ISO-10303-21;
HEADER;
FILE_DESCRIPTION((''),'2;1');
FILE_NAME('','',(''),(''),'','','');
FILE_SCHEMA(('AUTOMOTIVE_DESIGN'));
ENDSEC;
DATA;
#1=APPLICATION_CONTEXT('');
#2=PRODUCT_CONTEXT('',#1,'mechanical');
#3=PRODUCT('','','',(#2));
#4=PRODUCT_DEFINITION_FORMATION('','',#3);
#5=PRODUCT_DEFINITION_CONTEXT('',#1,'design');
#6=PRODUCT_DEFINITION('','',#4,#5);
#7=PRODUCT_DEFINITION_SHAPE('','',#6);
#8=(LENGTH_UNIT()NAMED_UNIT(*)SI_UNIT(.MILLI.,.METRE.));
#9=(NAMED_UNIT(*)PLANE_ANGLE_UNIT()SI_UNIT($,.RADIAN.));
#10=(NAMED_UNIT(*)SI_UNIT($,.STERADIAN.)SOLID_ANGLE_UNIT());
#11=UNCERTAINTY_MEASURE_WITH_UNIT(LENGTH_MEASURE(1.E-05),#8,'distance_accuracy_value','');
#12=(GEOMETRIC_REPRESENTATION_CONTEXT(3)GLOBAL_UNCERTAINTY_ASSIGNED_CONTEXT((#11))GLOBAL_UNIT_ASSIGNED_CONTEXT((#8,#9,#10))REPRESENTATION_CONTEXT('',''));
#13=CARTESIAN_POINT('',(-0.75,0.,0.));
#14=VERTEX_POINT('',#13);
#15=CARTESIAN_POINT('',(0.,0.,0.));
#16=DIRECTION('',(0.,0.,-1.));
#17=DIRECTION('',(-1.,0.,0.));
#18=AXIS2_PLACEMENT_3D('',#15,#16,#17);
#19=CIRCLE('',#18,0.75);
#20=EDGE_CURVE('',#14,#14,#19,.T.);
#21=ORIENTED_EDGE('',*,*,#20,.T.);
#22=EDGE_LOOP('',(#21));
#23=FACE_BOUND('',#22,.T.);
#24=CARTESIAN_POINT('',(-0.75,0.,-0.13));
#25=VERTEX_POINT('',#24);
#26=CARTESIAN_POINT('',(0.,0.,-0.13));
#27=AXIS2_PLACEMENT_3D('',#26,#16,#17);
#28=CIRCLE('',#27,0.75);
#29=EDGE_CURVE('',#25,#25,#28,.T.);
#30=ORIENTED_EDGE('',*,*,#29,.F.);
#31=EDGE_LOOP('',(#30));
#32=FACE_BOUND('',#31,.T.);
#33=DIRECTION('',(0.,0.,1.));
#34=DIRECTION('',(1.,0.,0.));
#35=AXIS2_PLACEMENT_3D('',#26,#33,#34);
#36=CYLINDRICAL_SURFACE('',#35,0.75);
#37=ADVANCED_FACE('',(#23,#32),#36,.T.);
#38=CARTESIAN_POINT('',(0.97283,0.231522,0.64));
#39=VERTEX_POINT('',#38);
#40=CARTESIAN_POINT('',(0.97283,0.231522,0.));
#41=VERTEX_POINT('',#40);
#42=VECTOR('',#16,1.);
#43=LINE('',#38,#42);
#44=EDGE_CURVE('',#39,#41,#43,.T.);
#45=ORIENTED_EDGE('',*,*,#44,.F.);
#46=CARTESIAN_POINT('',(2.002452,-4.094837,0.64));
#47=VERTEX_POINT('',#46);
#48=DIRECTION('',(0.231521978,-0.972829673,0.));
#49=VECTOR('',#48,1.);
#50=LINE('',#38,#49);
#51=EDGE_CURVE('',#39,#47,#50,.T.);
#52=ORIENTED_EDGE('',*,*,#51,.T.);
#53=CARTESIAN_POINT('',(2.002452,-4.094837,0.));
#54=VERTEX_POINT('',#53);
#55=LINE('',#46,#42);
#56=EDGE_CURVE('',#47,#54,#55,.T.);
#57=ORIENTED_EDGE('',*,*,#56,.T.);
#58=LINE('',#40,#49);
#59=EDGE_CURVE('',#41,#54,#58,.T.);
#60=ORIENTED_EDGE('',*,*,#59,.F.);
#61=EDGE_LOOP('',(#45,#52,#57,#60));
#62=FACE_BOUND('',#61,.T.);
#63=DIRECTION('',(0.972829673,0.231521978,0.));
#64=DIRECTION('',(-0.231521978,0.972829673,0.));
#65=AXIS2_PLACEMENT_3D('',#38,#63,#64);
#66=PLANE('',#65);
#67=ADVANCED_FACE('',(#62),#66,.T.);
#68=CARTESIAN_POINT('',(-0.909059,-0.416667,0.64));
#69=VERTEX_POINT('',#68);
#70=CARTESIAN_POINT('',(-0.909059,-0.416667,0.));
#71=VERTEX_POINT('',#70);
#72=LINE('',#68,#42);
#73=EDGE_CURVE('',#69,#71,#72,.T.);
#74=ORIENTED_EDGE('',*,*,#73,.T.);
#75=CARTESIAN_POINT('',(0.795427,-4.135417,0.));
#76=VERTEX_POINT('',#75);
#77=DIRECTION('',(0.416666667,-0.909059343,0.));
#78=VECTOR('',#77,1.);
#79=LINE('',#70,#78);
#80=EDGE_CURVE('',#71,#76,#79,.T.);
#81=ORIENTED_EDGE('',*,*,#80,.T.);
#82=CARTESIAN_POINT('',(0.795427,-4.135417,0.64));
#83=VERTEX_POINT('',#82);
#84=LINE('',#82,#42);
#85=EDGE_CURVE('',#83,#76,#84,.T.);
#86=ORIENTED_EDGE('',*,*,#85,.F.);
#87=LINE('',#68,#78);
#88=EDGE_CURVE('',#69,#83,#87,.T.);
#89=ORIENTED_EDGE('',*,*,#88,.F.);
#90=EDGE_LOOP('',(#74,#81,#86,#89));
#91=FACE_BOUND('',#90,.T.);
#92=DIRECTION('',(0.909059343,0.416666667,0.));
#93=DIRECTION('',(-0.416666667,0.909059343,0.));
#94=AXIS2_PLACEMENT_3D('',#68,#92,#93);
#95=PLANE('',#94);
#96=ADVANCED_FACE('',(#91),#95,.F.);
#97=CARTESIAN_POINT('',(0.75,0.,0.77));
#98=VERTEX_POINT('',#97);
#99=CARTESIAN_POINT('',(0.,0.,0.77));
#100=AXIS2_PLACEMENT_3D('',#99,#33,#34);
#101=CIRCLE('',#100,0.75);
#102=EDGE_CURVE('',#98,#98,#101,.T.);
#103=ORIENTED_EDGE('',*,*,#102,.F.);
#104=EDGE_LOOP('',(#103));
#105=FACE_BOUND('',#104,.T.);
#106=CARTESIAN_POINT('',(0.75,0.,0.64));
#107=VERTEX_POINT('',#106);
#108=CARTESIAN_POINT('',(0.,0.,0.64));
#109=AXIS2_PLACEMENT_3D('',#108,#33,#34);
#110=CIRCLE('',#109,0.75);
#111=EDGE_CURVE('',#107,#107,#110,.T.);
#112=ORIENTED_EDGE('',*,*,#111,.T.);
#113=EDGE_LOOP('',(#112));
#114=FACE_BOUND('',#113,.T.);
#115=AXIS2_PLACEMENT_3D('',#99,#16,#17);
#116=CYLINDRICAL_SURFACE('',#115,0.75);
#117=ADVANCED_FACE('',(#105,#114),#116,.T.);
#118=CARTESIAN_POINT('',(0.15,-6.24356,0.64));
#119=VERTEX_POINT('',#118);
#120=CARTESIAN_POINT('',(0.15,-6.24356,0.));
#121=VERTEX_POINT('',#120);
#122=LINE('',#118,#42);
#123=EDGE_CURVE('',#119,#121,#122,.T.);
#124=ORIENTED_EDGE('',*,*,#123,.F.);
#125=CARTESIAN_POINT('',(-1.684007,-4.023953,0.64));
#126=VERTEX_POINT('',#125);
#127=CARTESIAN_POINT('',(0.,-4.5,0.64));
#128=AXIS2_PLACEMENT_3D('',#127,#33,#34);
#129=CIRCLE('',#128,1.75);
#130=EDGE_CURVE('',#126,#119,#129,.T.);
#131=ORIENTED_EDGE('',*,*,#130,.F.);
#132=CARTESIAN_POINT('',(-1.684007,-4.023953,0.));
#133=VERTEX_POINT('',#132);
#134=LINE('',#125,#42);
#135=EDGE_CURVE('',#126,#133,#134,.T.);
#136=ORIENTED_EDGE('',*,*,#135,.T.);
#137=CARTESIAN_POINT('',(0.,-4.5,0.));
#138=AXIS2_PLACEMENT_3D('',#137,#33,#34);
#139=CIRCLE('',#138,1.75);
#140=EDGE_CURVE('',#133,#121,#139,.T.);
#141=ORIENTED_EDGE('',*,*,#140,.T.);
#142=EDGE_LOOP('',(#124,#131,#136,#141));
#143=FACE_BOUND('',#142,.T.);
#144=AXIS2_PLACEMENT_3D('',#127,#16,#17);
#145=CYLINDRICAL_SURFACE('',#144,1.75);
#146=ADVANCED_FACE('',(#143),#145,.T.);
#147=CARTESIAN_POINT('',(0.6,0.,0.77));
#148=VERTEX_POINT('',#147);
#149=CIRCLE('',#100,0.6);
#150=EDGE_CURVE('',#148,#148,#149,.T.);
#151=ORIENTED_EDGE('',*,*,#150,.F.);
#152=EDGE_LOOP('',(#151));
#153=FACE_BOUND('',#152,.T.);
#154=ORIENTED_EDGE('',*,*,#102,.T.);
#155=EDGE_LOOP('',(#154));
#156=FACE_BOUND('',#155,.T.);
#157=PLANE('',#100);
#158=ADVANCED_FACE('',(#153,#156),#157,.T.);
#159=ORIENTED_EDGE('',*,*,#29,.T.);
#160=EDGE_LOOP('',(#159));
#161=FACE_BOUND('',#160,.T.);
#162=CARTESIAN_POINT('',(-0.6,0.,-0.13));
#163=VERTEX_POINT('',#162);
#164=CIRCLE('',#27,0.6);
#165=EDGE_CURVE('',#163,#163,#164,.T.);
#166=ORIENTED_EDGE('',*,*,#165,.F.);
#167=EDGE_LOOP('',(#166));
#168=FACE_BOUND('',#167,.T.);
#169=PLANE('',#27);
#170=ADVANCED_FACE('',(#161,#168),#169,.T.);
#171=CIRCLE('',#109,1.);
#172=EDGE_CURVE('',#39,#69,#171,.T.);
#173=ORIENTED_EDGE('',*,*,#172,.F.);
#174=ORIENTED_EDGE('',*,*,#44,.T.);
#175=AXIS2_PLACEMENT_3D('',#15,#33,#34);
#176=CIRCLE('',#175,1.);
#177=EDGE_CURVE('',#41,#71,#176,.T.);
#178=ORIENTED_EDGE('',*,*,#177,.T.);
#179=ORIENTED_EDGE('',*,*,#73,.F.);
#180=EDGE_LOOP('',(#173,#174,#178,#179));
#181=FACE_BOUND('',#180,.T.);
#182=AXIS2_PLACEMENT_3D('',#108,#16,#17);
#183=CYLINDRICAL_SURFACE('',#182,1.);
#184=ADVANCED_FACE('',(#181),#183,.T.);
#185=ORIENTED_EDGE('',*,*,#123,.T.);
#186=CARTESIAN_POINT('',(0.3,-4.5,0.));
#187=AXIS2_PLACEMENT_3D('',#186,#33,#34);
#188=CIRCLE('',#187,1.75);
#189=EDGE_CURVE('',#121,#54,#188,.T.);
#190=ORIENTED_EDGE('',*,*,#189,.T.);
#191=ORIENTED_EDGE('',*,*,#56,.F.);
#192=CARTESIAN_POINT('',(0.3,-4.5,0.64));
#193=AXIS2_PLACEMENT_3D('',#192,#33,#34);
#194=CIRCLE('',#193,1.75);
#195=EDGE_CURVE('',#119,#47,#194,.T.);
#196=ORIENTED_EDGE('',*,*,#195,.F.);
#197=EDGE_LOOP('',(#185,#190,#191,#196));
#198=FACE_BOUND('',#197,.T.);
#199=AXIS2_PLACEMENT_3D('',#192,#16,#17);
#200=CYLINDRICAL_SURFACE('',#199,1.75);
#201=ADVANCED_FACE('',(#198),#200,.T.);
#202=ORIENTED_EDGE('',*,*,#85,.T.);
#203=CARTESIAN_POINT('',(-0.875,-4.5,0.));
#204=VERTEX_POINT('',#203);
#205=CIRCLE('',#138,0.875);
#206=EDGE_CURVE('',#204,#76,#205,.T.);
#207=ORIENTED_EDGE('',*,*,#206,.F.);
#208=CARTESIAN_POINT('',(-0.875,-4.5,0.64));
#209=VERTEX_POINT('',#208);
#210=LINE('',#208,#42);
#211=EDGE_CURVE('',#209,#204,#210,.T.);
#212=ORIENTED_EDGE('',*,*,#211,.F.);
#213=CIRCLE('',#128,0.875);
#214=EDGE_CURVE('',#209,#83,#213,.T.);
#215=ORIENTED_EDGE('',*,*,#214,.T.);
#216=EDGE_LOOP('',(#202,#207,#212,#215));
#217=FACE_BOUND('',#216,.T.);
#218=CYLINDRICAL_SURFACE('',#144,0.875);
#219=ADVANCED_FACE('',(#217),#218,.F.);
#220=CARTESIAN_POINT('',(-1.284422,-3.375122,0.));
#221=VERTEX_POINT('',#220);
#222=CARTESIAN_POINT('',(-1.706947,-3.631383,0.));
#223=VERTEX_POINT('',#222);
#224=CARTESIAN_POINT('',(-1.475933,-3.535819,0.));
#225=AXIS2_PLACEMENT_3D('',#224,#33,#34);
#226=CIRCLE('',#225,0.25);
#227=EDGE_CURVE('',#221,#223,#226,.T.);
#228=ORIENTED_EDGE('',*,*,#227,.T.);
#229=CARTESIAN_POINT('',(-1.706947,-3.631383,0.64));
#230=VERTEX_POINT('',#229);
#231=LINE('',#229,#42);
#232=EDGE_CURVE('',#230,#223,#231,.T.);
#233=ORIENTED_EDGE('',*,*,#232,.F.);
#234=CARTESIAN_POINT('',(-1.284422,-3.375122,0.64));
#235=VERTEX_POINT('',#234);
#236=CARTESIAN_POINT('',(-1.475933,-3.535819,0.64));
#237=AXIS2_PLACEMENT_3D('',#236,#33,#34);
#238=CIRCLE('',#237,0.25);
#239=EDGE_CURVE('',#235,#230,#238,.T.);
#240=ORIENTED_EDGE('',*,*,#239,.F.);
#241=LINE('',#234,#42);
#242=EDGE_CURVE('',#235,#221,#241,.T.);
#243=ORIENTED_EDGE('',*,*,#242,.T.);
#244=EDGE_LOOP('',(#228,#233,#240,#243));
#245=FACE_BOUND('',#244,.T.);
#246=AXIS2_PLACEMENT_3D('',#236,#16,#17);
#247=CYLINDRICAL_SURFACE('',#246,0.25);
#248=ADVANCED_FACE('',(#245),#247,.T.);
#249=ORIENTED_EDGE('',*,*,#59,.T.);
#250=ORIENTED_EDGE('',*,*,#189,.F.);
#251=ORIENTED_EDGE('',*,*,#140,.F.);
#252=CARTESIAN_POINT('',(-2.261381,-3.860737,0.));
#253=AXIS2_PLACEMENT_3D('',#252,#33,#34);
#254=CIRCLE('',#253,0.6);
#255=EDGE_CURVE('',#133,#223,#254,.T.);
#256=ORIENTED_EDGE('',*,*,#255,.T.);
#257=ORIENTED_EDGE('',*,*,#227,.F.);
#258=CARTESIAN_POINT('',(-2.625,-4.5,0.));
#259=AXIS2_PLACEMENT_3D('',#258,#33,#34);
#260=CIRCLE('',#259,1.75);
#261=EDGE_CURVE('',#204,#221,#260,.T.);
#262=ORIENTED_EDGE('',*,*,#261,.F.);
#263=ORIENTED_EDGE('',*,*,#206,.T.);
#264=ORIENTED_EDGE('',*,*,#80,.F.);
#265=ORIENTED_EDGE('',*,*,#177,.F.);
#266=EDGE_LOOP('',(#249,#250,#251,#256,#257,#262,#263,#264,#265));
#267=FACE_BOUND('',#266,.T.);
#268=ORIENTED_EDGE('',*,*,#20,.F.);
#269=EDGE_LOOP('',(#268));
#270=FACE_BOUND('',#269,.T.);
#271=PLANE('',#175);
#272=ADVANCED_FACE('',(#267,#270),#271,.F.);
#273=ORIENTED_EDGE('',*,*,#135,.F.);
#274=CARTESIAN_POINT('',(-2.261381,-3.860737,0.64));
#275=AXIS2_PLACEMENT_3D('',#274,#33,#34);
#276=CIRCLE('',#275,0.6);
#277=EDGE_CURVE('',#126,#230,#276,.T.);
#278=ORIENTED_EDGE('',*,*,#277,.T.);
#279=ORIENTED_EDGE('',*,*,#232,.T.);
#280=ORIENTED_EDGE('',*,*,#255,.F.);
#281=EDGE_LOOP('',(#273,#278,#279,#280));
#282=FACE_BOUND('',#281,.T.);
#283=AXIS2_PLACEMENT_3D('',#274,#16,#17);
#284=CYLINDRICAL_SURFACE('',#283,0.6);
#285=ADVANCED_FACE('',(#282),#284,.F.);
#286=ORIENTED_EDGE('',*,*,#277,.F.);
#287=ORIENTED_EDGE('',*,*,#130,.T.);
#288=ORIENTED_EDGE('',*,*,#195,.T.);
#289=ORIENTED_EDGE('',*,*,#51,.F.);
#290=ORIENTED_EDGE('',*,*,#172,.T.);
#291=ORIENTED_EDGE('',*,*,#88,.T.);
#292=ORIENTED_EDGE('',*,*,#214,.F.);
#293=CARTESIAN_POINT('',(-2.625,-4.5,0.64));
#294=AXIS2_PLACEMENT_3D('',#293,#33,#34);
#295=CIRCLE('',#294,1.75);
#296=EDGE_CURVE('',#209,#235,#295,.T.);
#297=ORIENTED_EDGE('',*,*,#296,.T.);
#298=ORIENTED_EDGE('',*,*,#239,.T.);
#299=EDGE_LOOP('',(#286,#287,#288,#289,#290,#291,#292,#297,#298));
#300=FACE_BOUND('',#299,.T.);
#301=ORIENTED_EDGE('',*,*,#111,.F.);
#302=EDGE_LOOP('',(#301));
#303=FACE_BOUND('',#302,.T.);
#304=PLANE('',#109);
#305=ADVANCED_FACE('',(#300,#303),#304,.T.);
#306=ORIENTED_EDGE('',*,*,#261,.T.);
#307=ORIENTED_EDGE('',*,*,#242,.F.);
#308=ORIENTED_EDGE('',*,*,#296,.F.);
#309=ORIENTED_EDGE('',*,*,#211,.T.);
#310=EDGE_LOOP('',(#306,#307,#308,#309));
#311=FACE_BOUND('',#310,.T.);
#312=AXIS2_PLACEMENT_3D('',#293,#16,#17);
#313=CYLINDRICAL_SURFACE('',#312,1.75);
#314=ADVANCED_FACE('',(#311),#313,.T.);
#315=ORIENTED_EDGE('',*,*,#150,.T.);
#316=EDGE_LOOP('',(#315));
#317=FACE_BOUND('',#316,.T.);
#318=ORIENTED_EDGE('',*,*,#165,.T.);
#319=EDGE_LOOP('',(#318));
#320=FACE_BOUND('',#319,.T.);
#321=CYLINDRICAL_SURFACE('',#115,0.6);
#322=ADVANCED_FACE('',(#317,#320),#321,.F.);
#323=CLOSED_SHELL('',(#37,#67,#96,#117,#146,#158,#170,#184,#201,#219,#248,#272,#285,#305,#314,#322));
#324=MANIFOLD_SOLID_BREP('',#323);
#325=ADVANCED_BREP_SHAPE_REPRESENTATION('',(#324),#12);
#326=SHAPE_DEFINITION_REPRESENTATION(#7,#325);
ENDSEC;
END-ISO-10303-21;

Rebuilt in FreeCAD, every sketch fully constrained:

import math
import FreeCAD as App
import Part
import Sketcher

doc = App.newDocument("Part")
params = doc.addObject("Spreadsheet::Sheet", "Params")
for row, (alias, value) in enumerate([
    ("sketch1_radius", "1 mm"),
    ("sketch1_radius2", "0.6 mm"),
    ("sketch1_radius3", "1.75 mm"),
    ("sketch1_radius4", "0.25 mm"),
    ("pad1_length", "0.64 mm"),
    ("sketch2_diameter", "1.5 mm"),
    ("sketch2_diameter2", "1.2 mm"),
    ("pad2_length", "0.13 mm"),
    ("sketch3_diameter", "1.5 mm"),
    ("sketch3_diameter2", "1.2 mm"),
    ("pad3_length", "0.13 mm"),
    ("sketch4_diameter", "1.2 mm"),
    ("pocket1_length", "0.64 mm"),
], start=1):
    params.set(f"A{row}", alias)
    params.set(f"B{row}", "=" + value)
    params.setAlias(f"B{row}", alias)

body = doc.addObject("PartDesign::Body", "Body")

sketch1 = doc.addObject("Sketcher::SketchObject", "Sketch")
body.addObject(sketch1)
sketch1.AttachmentSupport = (doc.XY_Plane, [""])
sketch1.MapMode = "FlatFace"
sketch1.addGeometry([
    Part.LineSegment(App.Vector(2, -4.09, 0), App.Vector(0.97, 0.23, 0)),
    Part.ArcOfCircle(Part.Circle(App.Vector(0, 0, 0), App.Vector(0, 0, 1), 1), math.radians(13), math.radians(205)),
    Part.LineSegment(App.Vector(-0.91, -0.42, 0), App.Vector(0.8, -4.14, 0)),
    Part.ArcOfCircle(Part.Circle(App.Vector(0, -4.5, 0), App.Vector(0, 0, 1), 0.88), math.radians(180), math.radians(385)),
    Part.ArcOfCircle(Part.Circle(App.Vector(-2.63, -4.5, 0), App.Vector(0, 0, 1), 1.75), math.radians(0), math.radians(40)),
    Part.ArcOfCircle(Part.Circle(App.Vector(-1.48, -3.54, 0), App.Vector(0, 0, 1), 0.25), math.radians(40), math.radians(202)),
    Part.ArcOfCircle(Part.Circle(App.Vector(-2.26, -3.86, 0), App.Vector(0, 0, 1), 0.6), math.radians(-16), math.radians(22)),
    Part.ArcOfCircle(Part.Circle(App.Vector(0, -4.5, 0), App.Vector(0, 0, 1), 1.75), math.radians(164), math.radians(275)),
    Part.ArcOfCircle(Part.Circle(App.Vector(0.3, -4.5, 0), App.Vector(0, 0, 1), 1.75), math.radians(-95), math.radians(13)),
], False)
sketch1.addConstraint([
    Sketcher.Constraint("Tangent", 0, 2, 1, 1),
    Sketcher.Constraint("Tangent", 1, 2, 2, 1),
    Sketcher.Constraint("Tangent", 2, 2, 3, 2),
    Sketcher.Constraint("Tangent", 3, 1, 4, 1),
    Sketcher.Constraint("Tangent", 4, 2, 5, 1),
    Sketcher.Constraint("Tangent", 5, 2, 6, 2),
    Sketcher.Constraint("Tangent", 6, 1, 7, 1),
    Sketcher.Constraint("Coincident", 7, 2, 8, 1),
    Sketcher.Constraint("Tangent", 8, 2, 0, 1),
    Sketcher.Constraint("Coincident", 1, 3, -1, 1),
    Sketcher.Constraint("Coincident", 7, 3, 3, 3),
    Sketcher.Constraint("Equal", 4, 7),
    Sketcher.Constraint("Equal", 7, 8),
    Sketcher.Constraint("PointOnObject", 3, 3, -2),
    Sketcher.Constraint("Horizontal", 3, 3, 4, 3),
    Sketcher.Constraint("Horizontal", 7, 3, 8, 3),
    Sketcher.Constraint("Radius", 1, 1.0),
    Sketcher.Constraint("Radius", 6, 0.6),
    Sketcher.Constraint("Radius", 4, 1.75),
    Sketcher.Constraint("Radius", 5, 0.25),
    Sketcher.Constraint("Radius", 3, 0.875),
    Sketcher.Constraint("DistanceY", 3, 3, -1, 1, 4.5),
    Sketcher.Constraint("DistanceX", -1, 1, 8, 3, 0.3),
    Sketcher.Constraint("DistanceY", 2, 2, 5, 3, 0.599598),
])
sketch1.setExpression("Constraints[16]", "Params.sketch1_radius")
sketch1.setExpression("Constraints[17]", "Params.sketch1_radius2")
sketch1.setExpression("Constraints[18]", "Params.sketch1_radius3")
sketch1.setExpression("Constraints[19]", "Params.sketch1_radius4")
pad1 = doc.addObject("PartDesign::Pad", "Pad")
body.addObject(pad1)
pad1.Profile = sketch1
pad1.setExpression("Length", "Params.pad1_length")

sketch2 = doc.addObject("Sketcher::SketchObject", "Sketch001")
body.addObject(sketch2)
sketch2.AttachmentSupport = (doc.XY_Plane, [""])
sketch2.MapMode = "FlatFace"
sketch2.AttachmentOffset = App.Placement(App.Vector(0, 0, 0.64), App.Rotation())
sketch2.addGeometry([
    Part.Circle(App.Vector(0, 0, 0), App.Vector(0, 0, 1), 0.8),
    Part.Circle(App.Vector(0, 0, 0), App.Vector(0, 0, 1), 0.6),
], False)
sketch2.addConstraint([
    Sketcher.Constraint("Coincident", 0, 3, -1, 1),
    Sketcher.Constraint("Coincident", 1, 3, -1, 1),
    Sketcher.Constraint("Diameter", 0, 1.5),
    Sketcher.Constraint("Diameter", 1, 1.2),
])
sketch2.setExpression("Constraints[2]", "Params.sketch2_diameter")
sketch2.setExpression("Constraints[3]", "Params.sketch2_diameter2")
pad2 = doc.addObject("PartDesign::Pad", "Pad001")
body.addObject(pad2)
pad2.Profile = sketch2
pad2.setExpression("Length", "Params.pad2_length")

sketch3 = doc.addObject("Sketcher::SketchObject", "Sketch002")
body.addObject(sketch3)
sketch3.AttachmentSupport = (doc.XY_Plane, [""])
sketch3.MapMode = "FlatFace"
sketch3.AttachmentOffset = App.Placement(App.Vector(0, 0, -0.13), App.Rotation())
sketch3.addGeometry([
    Part.Circle(App.Vector(0, 0, 0), App.Vector(0, 0, 1), 0.8),
    Part.Circle(App.Vector(0, 0, 0), App.Vector(0, 0, 1), 0.6),
], False)
sketch3.addConstraint([
    Sketcher.Constraint("Coincident", 0, 3, -1, 1),
    Sketcher.Constraint("Coincident", 1, 3, -1, 1),
    Sketcher.Constraint("Diameter", 0, 1.5),
    Sketcher.Constraint("Diameter", 1, 1.2),
])
sketch3.setExpression("Constraints[2]", "Params.sketch3_diameter")
sketch3.setExpression("Constraints[3]", "Params.sketch3_diameter2")
pad3 = doc.addObject("PartDesign::Pad", "Pad002")
body.addObject(pad3)
pad3.Profile = sketch3
pad3.setExpression("Length", "Params.pad3_length")

sketch4 = doc.addObject("Sketcher::SketchObject", "Sketch003")
body.addObject(sketch4)
sketch4.AttachmentSupport = (doc.XY_Plane, [""])
sketch4.MapMode = "FlatFace"
sketch4.addGeometry(Part.Circle(App.Vector(0, 0, 0), App.Vector(0, 0, 1), 0.6), False)
sketch4.addConstraint([
    Sketcher.Constraint("Coincident", 0, 3, -1, 1),
    Sketcher.Constraint("Diameter", 0, 1.2),
])
sketch4.setExpression("Constraints[1]", "Params.sketch4_diameter")
pocket1 = doc.addObject("PartDesign::Pocket", "Pocket")
body.addObject(pocket1)
pocket1.Profile = sketch4
pocket1.setExpression("Length", "Params.pocket1_length")
pocket1.Reversed = True

doc.recompute()
